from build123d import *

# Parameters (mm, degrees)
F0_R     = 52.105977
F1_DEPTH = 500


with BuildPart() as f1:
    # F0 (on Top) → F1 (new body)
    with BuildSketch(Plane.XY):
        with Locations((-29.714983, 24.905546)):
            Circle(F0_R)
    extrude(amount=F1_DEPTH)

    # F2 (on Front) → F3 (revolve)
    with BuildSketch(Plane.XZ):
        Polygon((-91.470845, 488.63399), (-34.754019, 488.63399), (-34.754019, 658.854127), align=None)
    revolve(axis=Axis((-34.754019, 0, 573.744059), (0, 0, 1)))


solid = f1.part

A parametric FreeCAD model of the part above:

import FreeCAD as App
import Part
import Sketcher
from FreeCAD import Vector
Q = App.Units.Quantity


def add_polygon(sketch, points):
    """Adds a closed chain of lines whose ends are joined by coincident constraints."""
    first, n = sketch.GeometryCount, len(points)
    for a, b in zip(points, points[1:] + points[:1]):
        sketch.addGeometry(Part.LineSegment(App.Vector(*a, 0), App.Vector(*b, 0)), False)
    for i in range(n):
        sketch.addConstraint(Sketcher.Constraint("Coincident", first + i, 2, first + (i + 1) % n, 1))

doc = App.newDocument("Part")
params = doc.addObject("Spreadsheet::Sheet", "Params")
for row, (alias, value) in enumerate([
    ("pad1_length", "500 mm"),
    ("revolution_angle", "360 deg"),
], start=1):
    params.set(f"A{row}", alias)
    params.set(f"B{row}", "=" + value)
    params.setAlias(f"B{row}", alias)

body = doc.addObject("PartDesign::Body", "Body")

# Sketch on XY plane
sketch1 = body.newObject("Sketcher::SketchObject", "Sketch")
sketch1.AttachmentSupport = (doc.getObject("XY_Plane"), [""])
sketch1.MapMode = "FlatFace"
sketch1.addGeometry(Part.Circle(Vector(-29.714983, 24.905546, 0), Vector(0, 0, 1), 52.105977), False)
sketch1.addConstraint(Sketcher.Constraint("Diameter", 0, Q("104.211954 mm")))
sketch1.addConstraint(Sketcher.Constraint("DistanceX", 0, 3, -1, 1, Q("29.714983 mm")))
sketch1.addConstraint(Sketcher.Constraint("DistanceY", -1, 1, 0, 3, Q("24.905546 mm")))
pad1 = body.newObject("PartDesign::Pad", "Pad")
pad1.Profile = sketch1
pad1.setExpression("Length", "Params.pad1_length")

# Sketch on XZ plane
sketch2 = body.newObject("Sketcher::SketchObject", "Sketch001")
sketch2.AttachmentSupport = (doc.getObject("XZ_Plane"), [""])
sketch2.MapMode = "FlatFace"
add_polygon(sketch2, [(-91.470845, 488.63399), (-34.754019, 488.63399), (-34.754019, 658.854127)])  # lines 0-2
sketch2.addGeometry(Part.LineSegment(Vector(-34.754019, 488.63399, 0), Vector(-34.754019, 658.854127, 0)), True)  # axis
sketch2.addConstraint(Sketcher.Constraint("Horizontal", 0))
sketch2.addConstraint(Sketcher.Constraint("Vertical", 1))
sketch2.addConstraint(Sketcher.Constraint("Vertical", 3))
sketch2.addConstraint(Sketcher.Constraint("Coincident", 3, 1, 0, 2))
sketch2.addConstraint(Sketcher.Constraint("Equal", 1, 3))
sketch2.addConstraint(Sketcher.Constraint("DistanceX", 0, 1, 0, 2, Q("56.716826 mm")))
sketch2.addConstraint(Sketcher.Constraint("DistanceY", 1, 1, 1, 2, Q("170.220137 mm")))
sketch2.addConstraint(Sketcher.Constraint("DistanceX", 0, 2, -1, 1, Q("34.754019 mm")))
sketch2.addConstraint(Sketcher.Constraint("DistanceY", -1, 1, 0, 2, Q("488.63399 mm")))
revolution = body.newObject("PartDesign::Revolution", "Revolution")
revolution.Profile = sketch2
revolution.ReferenceAxis = (sketch2, ["Axis0"])
revolution.setExpression("Angle", "Params.revolution_angle")

doc.recompute()
